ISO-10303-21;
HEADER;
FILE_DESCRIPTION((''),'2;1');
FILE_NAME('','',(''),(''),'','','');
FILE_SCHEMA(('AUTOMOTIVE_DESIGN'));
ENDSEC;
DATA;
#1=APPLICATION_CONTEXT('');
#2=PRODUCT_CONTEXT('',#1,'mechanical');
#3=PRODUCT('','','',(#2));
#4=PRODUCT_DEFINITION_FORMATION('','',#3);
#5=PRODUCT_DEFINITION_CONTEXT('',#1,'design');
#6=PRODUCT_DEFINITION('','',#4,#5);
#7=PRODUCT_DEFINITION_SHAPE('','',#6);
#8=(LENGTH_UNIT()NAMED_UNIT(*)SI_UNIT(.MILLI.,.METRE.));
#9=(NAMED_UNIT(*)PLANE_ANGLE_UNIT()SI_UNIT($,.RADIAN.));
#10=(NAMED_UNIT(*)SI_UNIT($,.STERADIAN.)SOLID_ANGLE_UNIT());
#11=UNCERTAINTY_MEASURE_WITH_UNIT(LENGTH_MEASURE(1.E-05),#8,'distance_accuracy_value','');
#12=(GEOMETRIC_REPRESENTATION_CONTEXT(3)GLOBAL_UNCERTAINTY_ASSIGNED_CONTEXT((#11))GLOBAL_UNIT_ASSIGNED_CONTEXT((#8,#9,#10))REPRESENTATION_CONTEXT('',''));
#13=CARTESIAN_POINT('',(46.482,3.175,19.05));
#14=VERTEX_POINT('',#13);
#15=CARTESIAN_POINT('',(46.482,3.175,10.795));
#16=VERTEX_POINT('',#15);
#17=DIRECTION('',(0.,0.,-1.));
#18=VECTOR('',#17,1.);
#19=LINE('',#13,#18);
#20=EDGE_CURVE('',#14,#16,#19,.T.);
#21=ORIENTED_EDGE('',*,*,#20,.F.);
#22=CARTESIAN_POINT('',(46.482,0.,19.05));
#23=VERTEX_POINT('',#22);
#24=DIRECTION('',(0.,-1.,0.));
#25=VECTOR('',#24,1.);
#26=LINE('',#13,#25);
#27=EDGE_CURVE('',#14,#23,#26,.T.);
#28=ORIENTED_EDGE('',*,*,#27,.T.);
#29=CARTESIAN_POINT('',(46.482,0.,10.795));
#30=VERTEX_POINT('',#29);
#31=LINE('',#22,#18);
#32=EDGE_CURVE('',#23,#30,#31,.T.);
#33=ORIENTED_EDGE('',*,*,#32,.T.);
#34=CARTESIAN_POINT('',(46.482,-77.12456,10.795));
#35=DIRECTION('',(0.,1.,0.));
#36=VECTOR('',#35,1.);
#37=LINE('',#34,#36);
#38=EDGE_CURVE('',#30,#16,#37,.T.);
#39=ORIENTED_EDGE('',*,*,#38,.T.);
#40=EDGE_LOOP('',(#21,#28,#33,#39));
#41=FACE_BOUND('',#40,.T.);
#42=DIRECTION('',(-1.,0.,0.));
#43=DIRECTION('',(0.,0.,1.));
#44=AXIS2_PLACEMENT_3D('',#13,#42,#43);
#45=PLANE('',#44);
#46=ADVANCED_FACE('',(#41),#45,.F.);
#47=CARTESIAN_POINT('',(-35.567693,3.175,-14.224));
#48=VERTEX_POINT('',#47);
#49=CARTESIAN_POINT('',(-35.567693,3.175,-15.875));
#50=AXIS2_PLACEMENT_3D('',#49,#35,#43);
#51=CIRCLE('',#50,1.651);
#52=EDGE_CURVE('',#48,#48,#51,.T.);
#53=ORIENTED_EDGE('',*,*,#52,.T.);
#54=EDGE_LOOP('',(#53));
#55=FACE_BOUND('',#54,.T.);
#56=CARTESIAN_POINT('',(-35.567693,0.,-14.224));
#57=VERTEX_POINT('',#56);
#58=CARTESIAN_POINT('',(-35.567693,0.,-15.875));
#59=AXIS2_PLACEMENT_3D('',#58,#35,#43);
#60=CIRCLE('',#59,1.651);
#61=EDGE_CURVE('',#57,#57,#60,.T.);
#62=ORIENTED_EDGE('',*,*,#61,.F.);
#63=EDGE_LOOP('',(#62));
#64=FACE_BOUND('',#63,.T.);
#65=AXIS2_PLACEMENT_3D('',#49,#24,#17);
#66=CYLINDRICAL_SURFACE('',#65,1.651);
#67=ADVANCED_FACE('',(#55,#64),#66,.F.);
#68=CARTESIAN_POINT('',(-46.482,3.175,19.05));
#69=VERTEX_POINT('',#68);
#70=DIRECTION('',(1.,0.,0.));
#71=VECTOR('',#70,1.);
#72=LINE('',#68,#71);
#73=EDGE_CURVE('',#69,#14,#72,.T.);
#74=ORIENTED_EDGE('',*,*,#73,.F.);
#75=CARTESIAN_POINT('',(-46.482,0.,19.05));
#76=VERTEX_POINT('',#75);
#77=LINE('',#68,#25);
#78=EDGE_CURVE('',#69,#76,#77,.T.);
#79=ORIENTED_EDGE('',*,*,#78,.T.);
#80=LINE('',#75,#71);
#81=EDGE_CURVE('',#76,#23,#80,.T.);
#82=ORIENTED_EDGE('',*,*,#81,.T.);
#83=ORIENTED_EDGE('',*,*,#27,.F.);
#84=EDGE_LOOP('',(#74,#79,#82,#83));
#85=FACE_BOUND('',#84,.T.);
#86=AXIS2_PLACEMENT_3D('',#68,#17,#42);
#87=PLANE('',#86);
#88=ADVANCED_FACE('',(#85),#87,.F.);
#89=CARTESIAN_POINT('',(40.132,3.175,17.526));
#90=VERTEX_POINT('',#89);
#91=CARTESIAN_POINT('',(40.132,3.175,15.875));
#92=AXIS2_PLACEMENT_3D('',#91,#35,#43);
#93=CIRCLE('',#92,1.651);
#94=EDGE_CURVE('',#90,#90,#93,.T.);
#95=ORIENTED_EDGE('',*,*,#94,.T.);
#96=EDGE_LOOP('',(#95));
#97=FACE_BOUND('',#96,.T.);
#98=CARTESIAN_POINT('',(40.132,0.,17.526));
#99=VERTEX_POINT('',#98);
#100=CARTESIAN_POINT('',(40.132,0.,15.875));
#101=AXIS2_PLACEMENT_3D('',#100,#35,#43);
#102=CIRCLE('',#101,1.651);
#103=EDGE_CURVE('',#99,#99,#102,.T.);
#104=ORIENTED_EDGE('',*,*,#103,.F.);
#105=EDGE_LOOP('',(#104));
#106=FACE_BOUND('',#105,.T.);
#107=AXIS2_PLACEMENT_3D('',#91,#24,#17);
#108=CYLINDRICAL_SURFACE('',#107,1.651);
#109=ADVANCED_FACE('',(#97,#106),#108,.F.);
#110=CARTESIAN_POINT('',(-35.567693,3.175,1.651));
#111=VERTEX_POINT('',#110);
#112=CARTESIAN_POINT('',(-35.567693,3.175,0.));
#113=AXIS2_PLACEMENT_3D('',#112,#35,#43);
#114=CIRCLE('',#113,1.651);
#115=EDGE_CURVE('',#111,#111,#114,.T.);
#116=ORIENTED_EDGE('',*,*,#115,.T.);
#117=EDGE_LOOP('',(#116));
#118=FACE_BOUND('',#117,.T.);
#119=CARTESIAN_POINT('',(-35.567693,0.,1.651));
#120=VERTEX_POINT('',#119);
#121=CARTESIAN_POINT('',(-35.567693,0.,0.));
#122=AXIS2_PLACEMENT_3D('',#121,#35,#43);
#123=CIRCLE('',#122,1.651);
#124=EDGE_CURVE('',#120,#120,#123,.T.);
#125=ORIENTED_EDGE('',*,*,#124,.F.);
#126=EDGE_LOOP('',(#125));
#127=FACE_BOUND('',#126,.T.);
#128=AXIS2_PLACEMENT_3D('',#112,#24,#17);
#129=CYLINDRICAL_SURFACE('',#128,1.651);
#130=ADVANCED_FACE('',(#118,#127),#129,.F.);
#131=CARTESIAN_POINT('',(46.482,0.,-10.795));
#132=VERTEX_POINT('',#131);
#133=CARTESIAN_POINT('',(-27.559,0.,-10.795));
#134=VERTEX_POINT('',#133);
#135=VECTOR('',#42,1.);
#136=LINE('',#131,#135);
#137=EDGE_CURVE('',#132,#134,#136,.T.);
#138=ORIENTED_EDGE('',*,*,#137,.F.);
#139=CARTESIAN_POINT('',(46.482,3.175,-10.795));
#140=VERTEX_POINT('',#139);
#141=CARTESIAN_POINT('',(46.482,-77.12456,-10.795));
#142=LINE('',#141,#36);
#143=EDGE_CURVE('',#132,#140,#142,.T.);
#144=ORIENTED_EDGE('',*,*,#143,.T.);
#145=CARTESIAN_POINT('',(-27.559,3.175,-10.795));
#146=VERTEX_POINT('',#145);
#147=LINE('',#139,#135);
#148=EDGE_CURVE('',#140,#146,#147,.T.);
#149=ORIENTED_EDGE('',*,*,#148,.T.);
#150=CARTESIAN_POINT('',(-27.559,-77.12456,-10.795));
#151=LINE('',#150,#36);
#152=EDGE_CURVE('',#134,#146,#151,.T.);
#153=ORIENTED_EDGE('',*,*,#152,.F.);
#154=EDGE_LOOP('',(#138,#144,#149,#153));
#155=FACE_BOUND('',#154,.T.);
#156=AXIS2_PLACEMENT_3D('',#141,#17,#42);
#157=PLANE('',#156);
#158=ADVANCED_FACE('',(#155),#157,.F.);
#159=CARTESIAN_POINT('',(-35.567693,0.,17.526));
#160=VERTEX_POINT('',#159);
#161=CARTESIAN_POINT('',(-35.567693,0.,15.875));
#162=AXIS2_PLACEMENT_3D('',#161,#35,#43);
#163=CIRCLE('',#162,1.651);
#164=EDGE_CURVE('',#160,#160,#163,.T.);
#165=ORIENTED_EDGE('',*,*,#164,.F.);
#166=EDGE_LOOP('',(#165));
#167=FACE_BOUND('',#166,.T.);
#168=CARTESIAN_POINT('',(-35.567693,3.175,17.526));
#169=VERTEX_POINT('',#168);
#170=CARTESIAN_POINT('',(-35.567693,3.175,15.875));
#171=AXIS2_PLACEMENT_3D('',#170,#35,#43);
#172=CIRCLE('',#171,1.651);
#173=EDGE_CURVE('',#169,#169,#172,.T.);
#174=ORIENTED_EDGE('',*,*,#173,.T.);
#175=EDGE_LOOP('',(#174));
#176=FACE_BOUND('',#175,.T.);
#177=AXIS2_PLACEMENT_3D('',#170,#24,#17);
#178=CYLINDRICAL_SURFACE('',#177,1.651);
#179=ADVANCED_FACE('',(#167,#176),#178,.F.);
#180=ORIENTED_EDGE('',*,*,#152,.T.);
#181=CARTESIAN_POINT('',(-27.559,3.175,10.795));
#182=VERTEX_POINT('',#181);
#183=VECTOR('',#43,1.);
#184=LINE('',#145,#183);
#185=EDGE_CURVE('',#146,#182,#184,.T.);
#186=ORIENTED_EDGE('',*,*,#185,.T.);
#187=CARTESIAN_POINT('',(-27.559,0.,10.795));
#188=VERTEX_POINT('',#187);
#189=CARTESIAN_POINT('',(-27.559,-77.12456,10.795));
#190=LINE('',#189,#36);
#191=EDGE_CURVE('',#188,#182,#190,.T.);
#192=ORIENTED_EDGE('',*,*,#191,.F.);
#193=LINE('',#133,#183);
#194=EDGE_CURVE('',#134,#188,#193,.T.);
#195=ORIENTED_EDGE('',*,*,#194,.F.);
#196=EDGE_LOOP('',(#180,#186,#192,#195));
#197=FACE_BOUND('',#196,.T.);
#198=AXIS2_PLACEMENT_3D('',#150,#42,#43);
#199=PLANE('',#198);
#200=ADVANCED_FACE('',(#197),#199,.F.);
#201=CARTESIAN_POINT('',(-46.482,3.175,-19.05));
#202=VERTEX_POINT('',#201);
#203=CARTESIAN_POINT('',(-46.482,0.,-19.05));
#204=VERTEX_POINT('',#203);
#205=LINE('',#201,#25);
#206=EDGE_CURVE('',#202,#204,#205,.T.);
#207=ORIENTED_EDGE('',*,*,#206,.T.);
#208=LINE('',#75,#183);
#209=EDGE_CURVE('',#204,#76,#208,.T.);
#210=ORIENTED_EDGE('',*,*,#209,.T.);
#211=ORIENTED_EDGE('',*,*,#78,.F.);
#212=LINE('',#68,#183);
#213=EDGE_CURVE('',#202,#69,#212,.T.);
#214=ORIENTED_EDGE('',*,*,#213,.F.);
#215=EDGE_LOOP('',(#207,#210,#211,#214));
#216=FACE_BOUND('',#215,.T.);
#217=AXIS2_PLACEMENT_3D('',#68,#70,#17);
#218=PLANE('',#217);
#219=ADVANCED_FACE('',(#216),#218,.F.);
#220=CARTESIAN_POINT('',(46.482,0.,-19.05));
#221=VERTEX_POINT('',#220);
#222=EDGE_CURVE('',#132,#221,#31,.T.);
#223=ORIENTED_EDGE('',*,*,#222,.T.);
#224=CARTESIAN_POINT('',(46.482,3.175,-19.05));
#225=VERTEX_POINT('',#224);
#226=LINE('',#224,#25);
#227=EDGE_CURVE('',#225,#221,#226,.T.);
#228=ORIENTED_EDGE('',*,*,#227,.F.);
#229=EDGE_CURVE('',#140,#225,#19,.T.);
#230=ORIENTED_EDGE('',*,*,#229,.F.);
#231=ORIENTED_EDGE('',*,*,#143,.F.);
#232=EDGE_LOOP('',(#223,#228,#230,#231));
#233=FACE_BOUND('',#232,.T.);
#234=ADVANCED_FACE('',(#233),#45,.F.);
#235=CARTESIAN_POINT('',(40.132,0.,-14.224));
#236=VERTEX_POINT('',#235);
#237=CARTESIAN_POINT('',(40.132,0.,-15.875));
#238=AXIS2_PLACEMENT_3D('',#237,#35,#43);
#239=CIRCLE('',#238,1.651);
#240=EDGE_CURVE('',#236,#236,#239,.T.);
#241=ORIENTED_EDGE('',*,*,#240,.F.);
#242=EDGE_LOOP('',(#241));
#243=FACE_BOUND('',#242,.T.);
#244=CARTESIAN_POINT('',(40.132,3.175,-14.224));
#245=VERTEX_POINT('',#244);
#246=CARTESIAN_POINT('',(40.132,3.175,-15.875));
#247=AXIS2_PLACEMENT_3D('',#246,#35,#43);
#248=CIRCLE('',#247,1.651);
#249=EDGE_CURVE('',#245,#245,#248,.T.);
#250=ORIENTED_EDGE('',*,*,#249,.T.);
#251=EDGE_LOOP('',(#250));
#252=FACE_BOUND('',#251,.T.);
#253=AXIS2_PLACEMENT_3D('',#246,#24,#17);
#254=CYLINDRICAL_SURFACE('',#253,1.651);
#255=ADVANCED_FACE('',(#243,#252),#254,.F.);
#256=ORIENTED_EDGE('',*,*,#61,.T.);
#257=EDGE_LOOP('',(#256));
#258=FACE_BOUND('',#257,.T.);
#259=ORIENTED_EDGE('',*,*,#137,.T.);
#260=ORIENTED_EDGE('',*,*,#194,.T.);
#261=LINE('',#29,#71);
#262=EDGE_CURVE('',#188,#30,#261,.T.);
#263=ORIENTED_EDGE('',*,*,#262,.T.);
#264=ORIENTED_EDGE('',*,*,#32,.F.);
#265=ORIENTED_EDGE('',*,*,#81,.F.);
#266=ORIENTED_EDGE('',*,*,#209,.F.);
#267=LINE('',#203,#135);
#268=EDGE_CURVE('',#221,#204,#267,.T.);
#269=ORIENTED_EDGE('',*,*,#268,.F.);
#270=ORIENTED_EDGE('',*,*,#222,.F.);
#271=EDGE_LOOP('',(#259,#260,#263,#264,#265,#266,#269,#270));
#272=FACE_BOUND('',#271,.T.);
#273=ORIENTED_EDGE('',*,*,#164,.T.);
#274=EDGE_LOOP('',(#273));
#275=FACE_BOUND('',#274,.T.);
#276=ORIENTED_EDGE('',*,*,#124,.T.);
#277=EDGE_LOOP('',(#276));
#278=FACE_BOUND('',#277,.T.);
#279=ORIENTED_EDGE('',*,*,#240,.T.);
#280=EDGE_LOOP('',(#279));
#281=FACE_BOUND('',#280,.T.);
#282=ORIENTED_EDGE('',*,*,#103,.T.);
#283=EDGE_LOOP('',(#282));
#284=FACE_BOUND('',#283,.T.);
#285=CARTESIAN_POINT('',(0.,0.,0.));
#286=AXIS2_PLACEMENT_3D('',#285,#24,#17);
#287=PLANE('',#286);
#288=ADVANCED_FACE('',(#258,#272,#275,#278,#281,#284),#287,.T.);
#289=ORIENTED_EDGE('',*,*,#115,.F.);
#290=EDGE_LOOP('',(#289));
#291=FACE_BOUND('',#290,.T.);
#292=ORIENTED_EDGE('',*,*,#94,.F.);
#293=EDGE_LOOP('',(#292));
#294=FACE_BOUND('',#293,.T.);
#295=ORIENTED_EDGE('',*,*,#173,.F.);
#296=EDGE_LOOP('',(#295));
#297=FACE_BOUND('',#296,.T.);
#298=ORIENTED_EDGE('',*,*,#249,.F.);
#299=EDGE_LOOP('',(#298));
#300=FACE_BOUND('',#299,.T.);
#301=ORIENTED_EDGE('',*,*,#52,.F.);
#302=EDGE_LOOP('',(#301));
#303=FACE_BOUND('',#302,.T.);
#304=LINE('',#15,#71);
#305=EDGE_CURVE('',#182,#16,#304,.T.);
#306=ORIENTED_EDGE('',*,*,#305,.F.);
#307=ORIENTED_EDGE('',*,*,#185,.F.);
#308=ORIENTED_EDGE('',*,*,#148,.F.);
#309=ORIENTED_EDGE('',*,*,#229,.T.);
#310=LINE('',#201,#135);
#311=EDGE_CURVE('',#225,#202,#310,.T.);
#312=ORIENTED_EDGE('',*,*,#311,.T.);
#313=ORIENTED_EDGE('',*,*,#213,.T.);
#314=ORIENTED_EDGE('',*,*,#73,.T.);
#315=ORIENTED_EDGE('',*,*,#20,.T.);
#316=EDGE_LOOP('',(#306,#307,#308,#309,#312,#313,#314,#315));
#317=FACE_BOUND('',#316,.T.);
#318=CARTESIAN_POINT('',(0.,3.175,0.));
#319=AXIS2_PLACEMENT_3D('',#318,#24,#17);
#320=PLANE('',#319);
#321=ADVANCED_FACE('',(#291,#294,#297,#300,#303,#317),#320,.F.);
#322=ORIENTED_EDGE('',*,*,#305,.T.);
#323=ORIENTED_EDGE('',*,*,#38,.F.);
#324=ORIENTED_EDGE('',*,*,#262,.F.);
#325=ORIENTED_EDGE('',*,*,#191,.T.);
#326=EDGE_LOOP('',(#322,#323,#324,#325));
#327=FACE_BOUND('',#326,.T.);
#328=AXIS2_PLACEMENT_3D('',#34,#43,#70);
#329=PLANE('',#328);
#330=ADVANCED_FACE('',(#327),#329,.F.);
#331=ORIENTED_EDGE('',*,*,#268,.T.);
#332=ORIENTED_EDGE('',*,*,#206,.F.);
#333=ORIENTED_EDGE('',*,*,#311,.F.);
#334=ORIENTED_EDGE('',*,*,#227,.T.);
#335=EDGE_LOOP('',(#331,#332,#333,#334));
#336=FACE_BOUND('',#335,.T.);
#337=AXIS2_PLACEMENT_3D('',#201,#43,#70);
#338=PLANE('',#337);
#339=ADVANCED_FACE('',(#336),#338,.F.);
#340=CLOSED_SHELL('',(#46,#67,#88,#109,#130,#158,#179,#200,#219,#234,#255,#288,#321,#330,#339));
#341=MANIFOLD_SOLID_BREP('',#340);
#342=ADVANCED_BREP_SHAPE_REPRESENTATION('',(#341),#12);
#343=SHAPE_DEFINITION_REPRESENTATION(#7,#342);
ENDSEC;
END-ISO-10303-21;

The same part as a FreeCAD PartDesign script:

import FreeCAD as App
import Part
import Sketcher
from FreeCAD import Vector
Q = App.Units.Quantity


def add_polygon(sketch, points):
    """Adds a closed chain of lines whose ends are joined by coincident constraints."""
    first, n = sketch.GeometryCount, len(points)
    for a, b in zip(points, points[1:] + points[:1]):
        sketch.addGeometry(Part.LineSegment(App.Vector(*a, 0), App.Vector(*b, 0)), False)
    for i in range(n):
        sketch.addConstraint(Sketcher.Constraint("Coincident", first + i, 2, first + (i + 1) % n, 1))

doc = App.newDocument("Part")
body = doc.addObject("PartDesign::Body", "Body")

# Sketch on XZ plane
sketch1 = body.newObject("Sketcher::SketchObject", "Sketch")
sketch1.AttachmentSupport = (doc.getObject("XZ_Plane"), [""])
sketch1.MapMode = "FlatFace"
add_polygon(sketch1, [(-46.5, -19.1), (-46.5, 19.1), (46.5, 19.1), (46.5, -19.1)])  # lines 0-3
sketch1.addGeometry(Part.Circle(Vector(-35.6, 15.9, 0), Vector(0, 0, 1), 1.7), False)  # 4
sketch1.addGeometry(Part.Circle(Vector(40.1, 15.9, 0), Vector(0, 0, 1), 1.7), False)  # 5
sketch1.addGeometry(Part.Circle(Vector(-35.6, 0, 0), Vector(0, 0, 1), 1.7), False)  # 6
sketch1.addGeometry(Part.Circle(Vector(-35.6, -15.9, 0), Vector(0, 0, 1), 1.7), False)  # 7
sketch1.addGeometry(Part.Circle(Vector(40.1, -15.9, 0), Vector(0, 0, 1), 1.7), False)  # 8
sketch1.addConstraint([
    Sketcher.Constraint("Vertical", 0),
    Sketcher.Constraint("Horizontal", 1),
    Sketcher.Constraint("Vertical", 2),
    Sketcher.Constraint("Horizontal", 3),
    Sketcher.Constraint("Equal", 4, 5),
    Sketcher.Constraint("Equal", 5, 6),
    Sketcher.Constraint("Equal", 6, 7),
    Sketcher.Constraint("Equal", 7, 8),
    Sketcher.Constraint("Symmetric", 0, 2, 2, 2, -1, 1),
    Sketcher.Constraint("Symmetric", 4, 3, 7, 3, -1),
    Sketcher.Constraint("Symmetric", 5, 3, 8, 3, -1),
    Sketcher.Constraint("PointOnObject", 6, 3, -1),
    Sketcher.Constraint("Horizontal", 4, 3, 5, 3),
    Sketcher.Constraint("Vertical", 4, 3, 6, 3),
    Sketcher.Constraint("Diameter", 4, Q("0.13 in")),
    Sketcher.Constraint("DistanceY", 0, 1, 0, 2, Q("1.5 in")),
    Sketcher.Constraint("DistanceX", 1, 1, 1, 2, Q("3.66 in")),
    Sketcher.Constraint("DistanceX", -1, 1, 5, 3, Q("1.58 in")),
    Sketcher.Constraint("DistanceY", 7, 3, 4, 3, Q("1.25 in")),
    Sketcher.Constraint("DistanceX", 4, 3, -1, 1, Q("35.567693 mm")),
])
pad1 = body.newObject("PartDesign::Pad", "Pad")
pad1.Profile = sketch1
pad1.Length = Q("0.125 in")
pad1.Reversed = True

# Sketch on XZ plane
sketch2 = body.newObject("Sketcher::SketchObject", "Sketch001")
sketch2.AttachmentSupport = (doc.getObject("XZ_Plane"), [""])
sketch2.MapMode = "FlatFace"
sketch2.AttachmentOffset = App.Placement(Vector(0, 0, -0.125 * 25.4), App.Rotation())
add_polygon(sketch2, [(-28, -11), (-28, 11), (46, 11), (46, -11)])  # lines 0-3
sketch2.addConstraint([
    Sketcher.Constraint("Vertical", 0),
    Sketcher.Constraint("Horizontal", 1),
    Sketcher.Constraint("Vertical", 2),
    Sketcher.Constraint("Horizontal", 3),
    Sketcher.Constraint("DistanceY", 0, 1, 0, 2, Q("0.85 in")),
    Sketcher.Constraint("DistanceX", 1, 1, 1, 2, Q("2.915 in")),
    Sketcher.Constraint("DistanceX", -1, 1, 1, 2, Q("1.83 in")),
    Sketcher.Constraint("DistanceY", -1, 1, 0, 2, Q("0.425 in")),
])
pocket1 = body.newObject("PartDesign::Pocket", "Pocket")
pocket1.Profile = sketch2
pocket1.Length = Q("0.125 in")
pocket1.Reversed = True

doc.recompute()
